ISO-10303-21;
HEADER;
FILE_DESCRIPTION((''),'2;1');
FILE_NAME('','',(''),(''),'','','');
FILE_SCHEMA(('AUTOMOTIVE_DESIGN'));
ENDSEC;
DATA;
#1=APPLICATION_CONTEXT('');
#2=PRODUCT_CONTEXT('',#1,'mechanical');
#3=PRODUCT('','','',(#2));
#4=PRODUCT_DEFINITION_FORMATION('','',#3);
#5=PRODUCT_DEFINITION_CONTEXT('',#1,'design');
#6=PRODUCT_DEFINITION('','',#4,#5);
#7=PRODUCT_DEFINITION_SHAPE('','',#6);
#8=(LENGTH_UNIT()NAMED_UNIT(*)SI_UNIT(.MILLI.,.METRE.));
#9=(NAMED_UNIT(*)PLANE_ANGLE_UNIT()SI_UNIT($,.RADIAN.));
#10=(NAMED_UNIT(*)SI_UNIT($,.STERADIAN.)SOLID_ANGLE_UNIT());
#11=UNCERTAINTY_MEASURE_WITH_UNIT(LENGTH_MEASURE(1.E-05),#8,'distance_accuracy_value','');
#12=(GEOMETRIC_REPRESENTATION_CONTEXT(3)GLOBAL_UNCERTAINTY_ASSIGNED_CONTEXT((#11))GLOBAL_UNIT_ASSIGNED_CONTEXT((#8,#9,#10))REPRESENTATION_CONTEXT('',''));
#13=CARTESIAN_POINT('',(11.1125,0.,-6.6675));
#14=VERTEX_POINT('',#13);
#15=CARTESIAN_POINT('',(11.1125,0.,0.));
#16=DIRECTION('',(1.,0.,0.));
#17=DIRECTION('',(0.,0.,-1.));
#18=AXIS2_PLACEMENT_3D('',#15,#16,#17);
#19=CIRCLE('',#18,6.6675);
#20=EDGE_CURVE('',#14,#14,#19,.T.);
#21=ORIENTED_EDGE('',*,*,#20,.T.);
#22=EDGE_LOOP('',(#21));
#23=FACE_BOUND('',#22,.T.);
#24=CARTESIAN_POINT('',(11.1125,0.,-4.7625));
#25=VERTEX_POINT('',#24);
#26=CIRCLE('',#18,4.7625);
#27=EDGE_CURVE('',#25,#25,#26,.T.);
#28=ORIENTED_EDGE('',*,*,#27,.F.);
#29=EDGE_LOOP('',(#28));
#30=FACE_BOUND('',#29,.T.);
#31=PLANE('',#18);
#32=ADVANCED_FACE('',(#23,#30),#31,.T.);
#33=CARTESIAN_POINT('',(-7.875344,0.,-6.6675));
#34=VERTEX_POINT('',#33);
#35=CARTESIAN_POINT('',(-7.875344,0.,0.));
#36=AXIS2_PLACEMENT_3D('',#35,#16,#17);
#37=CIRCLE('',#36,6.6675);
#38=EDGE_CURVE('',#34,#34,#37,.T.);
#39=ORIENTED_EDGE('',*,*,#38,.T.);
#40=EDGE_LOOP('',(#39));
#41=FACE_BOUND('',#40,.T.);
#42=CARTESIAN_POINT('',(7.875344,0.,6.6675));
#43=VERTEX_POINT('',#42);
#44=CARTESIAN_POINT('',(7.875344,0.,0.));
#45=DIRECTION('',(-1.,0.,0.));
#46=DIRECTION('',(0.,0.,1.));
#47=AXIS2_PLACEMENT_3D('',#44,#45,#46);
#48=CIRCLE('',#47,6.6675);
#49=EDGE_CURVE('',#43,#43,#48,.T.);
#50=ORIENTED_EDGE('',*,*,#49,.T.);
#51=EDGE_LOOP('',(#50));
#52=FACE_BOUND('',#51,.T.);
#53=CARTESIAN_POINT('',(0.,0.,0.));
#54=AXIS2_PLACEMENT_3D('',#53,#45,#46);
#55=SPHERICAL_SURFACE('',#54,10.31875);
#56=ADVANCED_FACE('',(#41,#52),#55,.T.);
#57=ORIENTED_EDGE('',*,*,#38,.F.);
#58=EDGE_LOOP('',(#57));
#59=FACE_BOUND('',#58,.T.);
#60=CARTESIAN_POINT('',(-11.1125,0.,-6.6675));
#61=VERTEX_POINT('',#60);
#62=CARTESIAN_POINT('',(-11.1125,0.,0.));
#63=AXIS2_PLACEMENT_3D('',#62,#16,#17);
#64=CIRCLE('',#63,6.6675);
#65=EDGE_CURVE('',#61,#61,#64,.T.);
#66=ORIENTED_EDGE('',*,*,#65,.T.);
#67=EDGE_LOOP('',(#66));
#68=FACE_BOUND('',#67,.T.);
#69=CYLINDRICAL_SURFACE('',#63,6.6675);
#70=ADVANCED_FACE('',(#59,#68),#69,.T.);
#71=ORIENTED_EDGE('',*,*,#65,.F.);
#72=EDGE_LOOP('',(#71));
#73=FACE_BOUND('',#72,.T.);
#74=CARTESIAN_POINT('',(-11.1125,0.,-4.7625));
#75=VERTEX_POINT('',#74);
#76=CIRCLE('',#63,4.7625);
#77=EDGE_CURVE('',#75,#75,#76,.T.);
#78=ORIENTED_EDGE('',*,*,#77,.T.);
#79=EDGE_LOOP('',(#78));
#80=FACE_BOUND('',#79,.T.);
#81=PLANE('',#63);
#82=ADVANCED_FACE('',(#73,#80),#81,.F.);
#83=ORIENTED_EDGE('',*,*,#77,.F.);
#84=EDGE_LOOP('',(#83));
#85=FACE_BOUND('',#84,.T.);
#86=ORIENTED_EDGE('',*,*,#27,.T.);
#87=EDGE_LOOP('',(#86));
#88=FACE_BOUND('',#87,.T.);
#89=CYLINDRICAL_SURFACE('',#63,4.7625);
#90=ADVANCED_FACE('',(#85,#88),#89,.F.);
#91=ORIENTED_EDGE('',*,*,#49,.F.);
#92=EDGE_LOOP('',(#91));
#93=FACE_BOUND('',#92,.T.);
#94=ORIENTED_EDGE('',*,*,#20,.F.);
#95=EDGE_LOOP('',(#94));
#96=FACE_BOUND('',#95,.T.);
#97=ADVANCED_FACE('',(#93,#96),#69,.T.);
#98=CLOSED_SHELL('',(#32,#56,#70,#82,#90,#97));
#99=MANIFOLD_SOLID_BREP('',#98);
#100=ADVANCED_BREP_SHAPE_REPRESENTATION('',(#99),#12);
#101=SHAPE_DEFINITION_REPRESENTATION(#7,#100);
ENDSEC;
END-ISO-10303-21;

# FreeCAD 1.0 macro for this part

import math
import FreeCAD as App
import Part
import Sketcher

V = App.Vector
Q = App.Units.Quantity

doc = App.newDocument("Part")
body = doc.addObject("PartDesign::Body", "Body")

sketch1 = doc.addObject("Sketcher::SketchObject", "Sketch")
body.addObject(sketch1)
sketch1.AttachmentSupport = (doc.XZ_Plane, [""])
sketch1.MapMode = "FlatFace"
sketch1.addGeometry([
    Part.LineSegment(V(0, -10, 0), V(0, 10, 0)),
    Part.ArcOfCircle(Part.Circle(V(0, 0, 0), V(0, 0, 1), 10), math.radians(-90), math.radians(90)),
], False)
sketch1.addConstraint([
    Sketcher.Constraint("Coincident", 0, 1, 1, 1),
    Sketcher.Constraint("Coincident", 1, 2, 0, 2),
    Sketcher.Constraint("Vertical", 0),
    Sketcher.Constraint("Coincident", 1, 3, -1, 1),
    Sketcher.Constraint("PointOnObject", 0, 1, -2),
    Sketcher.Constraint("Radius", 1, Q("0.40625 in")),
])
revolution = doc.addObject("PartDesign::Revolution", "Revolution")
body.addObject(revolution)
revolution.Profile = sketch1
revolution.ReferenceAxis = (sketch1, ["V_Axis"])
revolution.Angle = 360

sketch2 = doc.addObject("Sketcher::SketchObject", "Sketch001")
body.addObject(sketch2)
sketch2.AttachmentSupport = (doc.YZ_Plane, [""])
sketch2.MapMode = "FlatFace"
sketch2.addGeometry([
    Part.Circle(V(0, 0, 0), V(0, 0, 1), 6.7),
    Part.Circle(V(0, 0, 0), V(0, 0, 1), 4.8),
], False)
sketch2.addConstraint([
    Sketcher.Constraint("Coincident", 0, 3, -1, 1),
    Sketcher.Constraint("Coincident", 1, 3, -1, 1),
    Sketcher.Constraint("Diameter", 0, Q("0.525 in")),
    Sketcher.Constraint("Diameter", 1, Q("0.375 in")),
])
pad1 = doc.addObject("PartDesign::Pad", "Pad")
body.addObject(pad1)
pad1.Profile = sketch2
pad1.Type = "TwoLengths"
pad1.Length = Q("0.4375 in")
pad1.Length2 = Q("0.4375 in")

sketch3 = doc.addObject("Sketcher::SketchObject", "Sketch002")
body.addObject(sketch3)
sketch3.AttachmentSupport = (doc.YZ_Plane, [""])
sketch3.MapMode = "FlatFace"
sketch3.AttachmentOffset = App.Placement(V(0, 0, 0.4375 * 25.4), App.Rotation())
sketch3.addGeometry(Part.Circle(V(0, 0, 0), V(0, 0, 1), 4.8), False)
sketch3.addConstraint([
    Sketcher.Constraint("Coincident", 0, 3, -1, 1),
    Sketcher.Constraint("Diameter", 0, Q("0.375 in")),
])
pocket1 = doc.addObject("PartDesign::Pocket", "Pocket")
body.addObject(pocket1)
pocket1.Profile = sketch3
pocket1.Type = "ThroughAll"

doc.recompute()
